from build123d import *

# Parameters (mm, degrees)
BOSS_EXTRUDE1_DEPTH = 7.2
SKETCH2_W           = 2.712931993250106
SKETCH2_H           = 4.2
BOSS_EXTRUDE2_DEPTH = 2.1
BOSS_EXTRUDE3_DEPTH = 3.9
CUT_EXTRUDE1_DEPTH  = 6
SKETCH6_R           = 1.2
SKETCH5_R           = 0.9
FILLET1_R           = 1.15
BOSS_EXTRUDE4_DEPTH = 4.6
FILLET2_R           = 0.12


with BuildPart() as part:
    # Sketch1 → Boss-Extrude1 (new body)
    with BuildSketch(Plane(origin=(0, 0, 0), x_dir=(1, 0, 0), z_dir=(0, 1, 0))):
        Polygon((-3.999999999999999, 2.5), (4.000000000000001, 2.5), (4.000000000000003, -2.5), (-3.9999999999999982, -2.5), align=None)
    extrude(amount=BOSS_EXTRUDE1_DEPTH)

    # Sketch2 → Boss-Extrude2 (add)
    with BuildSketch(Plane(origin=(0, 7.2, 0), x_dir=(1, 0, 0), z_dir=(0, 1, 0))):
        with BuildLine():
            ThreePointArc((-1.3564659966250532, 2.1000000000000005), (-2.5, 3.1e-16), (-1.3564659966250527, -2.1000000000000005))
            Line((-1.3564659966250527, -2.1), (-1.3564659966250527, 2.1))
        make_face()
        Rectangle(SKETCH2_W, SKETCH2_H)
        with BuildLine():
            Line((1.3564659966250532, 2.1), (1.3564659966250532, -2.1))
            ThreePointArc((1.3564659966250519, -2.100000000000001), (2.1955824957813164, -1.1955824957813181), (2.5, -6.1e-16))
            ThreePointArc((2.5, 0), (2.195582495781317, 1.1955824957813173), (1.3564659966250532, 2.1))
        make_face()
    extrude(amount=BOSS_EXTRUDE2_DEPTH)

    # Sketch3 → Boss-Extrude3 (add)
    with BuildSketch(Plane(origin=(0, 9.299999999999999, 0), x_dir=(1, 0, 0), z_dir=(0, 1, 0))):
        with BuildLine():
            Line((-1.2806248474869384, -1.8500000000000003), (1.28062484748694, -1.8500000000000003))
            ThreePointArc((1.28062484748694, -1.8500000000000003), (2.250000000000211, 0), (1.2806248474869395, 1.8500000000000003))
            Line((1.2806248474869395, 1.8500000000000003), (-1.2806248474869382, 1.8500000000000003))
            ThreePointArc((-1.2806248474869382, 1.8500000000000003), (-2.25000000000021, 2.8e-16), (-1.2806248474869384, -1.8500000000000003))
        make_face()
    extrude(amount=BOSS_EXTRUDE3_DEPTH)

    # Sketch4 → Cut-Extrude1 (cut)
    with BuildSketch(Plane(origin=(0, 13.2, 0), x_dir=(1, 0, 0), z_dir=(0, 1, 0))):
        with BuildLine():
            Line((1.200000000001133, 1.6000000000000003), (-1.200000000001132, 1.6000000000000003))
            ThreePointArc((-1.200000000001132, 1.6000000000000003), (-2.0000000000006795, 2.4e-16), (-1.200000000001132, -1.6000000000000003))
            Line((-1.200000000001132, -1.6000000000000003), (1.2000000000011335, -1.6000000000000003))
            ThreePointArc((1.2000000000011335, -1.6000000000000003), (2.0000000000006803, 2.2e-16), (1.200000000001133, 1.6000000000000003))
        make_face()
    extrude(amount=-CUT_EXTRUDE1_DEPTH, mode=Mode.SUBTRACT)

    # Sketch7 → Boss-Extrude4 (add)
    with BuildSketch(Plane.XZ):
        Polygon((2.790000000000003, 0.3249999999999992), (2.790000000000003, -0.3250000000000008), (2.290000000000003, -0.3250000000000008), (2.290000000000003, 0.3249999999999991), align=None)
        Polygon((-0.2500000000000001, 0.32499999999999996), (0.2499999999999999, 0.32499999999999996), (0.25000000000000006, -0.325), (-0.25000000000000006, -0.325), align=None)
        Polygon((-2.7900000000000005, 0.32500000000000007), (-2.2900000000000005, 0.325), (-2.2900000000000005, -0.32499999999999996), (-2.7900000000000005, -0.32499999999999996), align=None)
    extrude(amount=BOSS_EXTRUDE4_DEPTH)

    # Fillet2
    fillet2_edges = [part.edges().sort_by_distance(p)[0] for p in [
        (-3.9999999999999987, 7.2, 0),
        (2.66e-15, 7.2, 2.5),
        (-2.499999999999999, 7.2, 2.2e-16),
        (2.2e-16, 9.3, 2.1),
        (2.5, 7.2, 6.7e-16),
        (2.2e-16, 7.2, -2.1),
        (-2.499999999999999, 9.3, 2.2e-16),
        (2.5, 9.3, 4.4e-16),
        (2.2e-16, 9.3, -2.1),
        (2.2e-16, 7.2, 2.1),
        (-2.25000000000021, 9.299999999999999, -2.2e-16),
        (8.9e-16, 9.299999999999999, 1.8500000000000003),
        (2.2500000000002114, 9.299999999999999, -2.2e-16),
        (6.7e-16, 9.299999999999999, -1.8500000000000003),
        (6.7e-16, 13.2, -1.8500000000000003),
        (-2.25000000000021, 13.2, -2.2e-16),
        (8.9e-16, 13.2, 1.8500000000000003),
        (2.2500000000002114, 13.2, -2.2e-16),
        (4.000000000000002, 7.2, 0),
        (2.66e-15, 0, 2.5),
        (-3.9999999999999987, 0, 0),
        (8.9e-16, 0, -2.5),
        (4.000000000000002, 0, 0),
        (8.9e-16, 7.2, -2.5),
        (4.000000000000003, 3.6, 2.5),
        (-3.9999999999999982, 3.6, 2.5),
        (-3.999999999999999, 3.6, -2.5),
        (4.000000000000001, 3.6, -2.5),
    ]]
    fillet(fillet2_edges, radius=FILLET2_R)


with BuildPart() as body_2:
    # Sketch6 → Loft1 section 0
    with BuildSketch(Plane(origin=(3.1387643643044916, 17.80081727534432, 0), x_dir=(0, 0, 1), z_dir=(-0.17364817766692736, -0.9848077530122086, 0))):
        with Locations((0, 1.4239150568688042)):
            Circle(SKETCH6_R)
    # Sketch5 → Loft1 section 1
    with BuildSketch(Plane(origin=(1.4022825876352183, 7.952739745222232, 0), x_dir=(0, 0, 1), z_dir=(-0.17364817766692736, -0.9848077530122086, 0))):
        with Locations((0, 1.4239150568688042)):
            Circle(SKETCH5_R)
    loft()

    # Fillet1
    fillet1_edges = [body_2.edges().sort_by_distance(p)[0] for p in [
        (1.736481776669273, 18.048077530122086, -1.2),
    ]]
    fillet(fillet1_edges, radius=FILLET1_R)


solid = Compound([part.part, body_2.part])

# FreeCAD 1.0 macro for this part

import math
import FreeCAD as App
import Part
import Sketcher

V = App.Vector
Q = App.Units.Quantity


def edges_at(feature, points):
    """Names of the edges that pass closest to the given points."""
    edges = feature.Shape.Edges
    near = lambda p: min(range(len(edges)), key=lambda i: edges[i].distToShape(Part.Vertex(*p))[0])
    return sorted({f"Edge{near(p) + 1}" for p in points})

doc = App.newDocument("Part")
body = doc.addObject("PartDesign::Body", "Body")

# Sketch on XZ plane
sketch1 = body.newObject("Sketcher::SketchObject", "Sketch")
sketch1.AttachmentSupport = (doc.getObject("XZ_Plane"), [""])
sketch1.MapMode = "FlatFace"
sketch1.addGeometry(Part.LineSegment(V(4, -2, 0), V(-4, -2, 0)), False)
sketch1.addGeometry(Part.LineSegment(V(-4, -2, 0), V(-4, 2, 0)), False)
sketch1.addGeometry(Part.LineSegment(V(-4, 2, 0), V(4, 2, 0)), False)
sketch1.addGeometry(Part.LineSegment(V(4, 2, 0), V(4, -2, 0)), False)
sketch1.addConstraint(Sketcher.Constraint("Coincident", 0, 2, 1, 1))
sketch1.addConstraint(Sketcher.Constraint("Coincident", 1, 2, 2, 1))
sketch1.addConstraint(Sketcher.Constraint("Coincident", 2, 2, 3, 1))
sketch1.addConstraint(Sketcher.Constraint("Coincident", 3, 2, 0, 1))
sketch1.addConstraint(Sketcher.Constraint("Horizontal", 0))
sketch1.addConstraint(Sketcher.Constraint("Vertical", 1))
sketch1.addConstraint(Sketcher.Constraint("Horizontal", 2))
sketch1.addConstraint(Sketcher.Constraint("Vertical", 3))
sketch1.addConstraint(Sketcher.Constraint("Symmetric", 0, 2, 2, 2, -1, 1))
sketch1.addConstraint(Sketcher.Constraint("DistanceX", 0, 2, 0, 1, Q("8 mm")))
sketch1.addConstraint(Sketcher.Constraint("DistanceY", 1, 1, 1, 2, Q("5 mm")))
pad1 = body.newObject("PartDesign::Pad", "Pad")
pad1.Profile = sketch1
pad1.Length = 7.2
pad1.Reversed = True

# Sketch on XZ plane
sketch2 = body.newObject("Sketcher::SketchObject", "Sketch001")
sketch2.AttachmentSupport = (doc.getObject("XZ_Plane"), [""])
sketch2.MapMode = "FlatFace"
sketch2.AttachmentOffset = App.Placement(V(0, 0, -7.2), App.Rotation())
sketch2.addGeometry(Part.ArcOfCircle(Part.Circle(V(0, 0, 0), V(0, 0, 1), 2.5), math.radians(123), math.radians(237)), False)
sketch2.addGeometry(Part.LineSegment(V(-1.4, 2.1, 0), V(1.4, 2.1, 0)), False)
sketch2.addGeometry(Part.ArcOfCircle(Part.Circle(V(0, 0, 0), V(0, 0, 1), 2.5), math.radians(-57), math.radians(57)), False)
sketch2.addGeometry(Part.LineSegment(V(1.4, -2.1, 0), V(-1.4, -2.1, 0)), False)
sketch2.addConstraint(Sketcher.Constraint("Coincident", 0, 1, 1, 1))
sketch2.addConstraint(Sketcher.Constraint("Coincident", 1, 2, 2, 2))
sketch2.addConstraint(Sketcher.Constraint("Coincident", 2, 1, 3, 1))
sketch2.addConstraint(Sketcher.Constraint("Coincident", 3, 2, 0, 2))
sketch2.addConstraint(Sketcher.Constraint("Horizontal", 1))
sketch2.addConstraint(Sketcher.Constraint("Horizontal", 3))
sketch2.addConstraint(Sketcher.Constraint("Coincident", 0, 3, -1, 1))
sketch2.addConstraint(Sketcher.Constraint("Coincident", 2, 3, -1, 1))
sketch2.addConstraint(Sketcher.Constraint("Equal", 0, 2))
sketch2.addConstraint(Sketcher.Constraint("Vertical", 1, 2, 2, 1))
sketch2.addConstraint(Sketcher.Constraint("Radius", 0, Q("2.5 mm")))
sketch2.addConstraint(Sketcher.Constraint("DistanceY", -1, 1, 0, 1, Q("2.1 mm")))
pad2 = body.newObject("PartDesign::Pad", "Pad001")
pad2.Profile = sketch2
pad2.Length = 2.1
pad2.Reversed = True

# Sketch on XZ plane
sketch3 = body.newObject("Sketcher::SketchObject", "Sketch002")
sketch3.AttachmentSupport = (doc.getObject("XZ_Plane"), [""])
sketch3.MapMode = "FlatFace"
sketch3.AttachmentOffset = App.Placement(V(0, 0, -9.3), App.Rotation())
sketch3.addGeometry(Part.LineSegment(V(-1.3, 1.9, 0), V(1.3, 1.9, 0)), False)
sketch3.addGeometry(Part.ArcOfCircle(Part.Circle(V(0, 0, 0), V(0, 0, 1), 2.2), math.radians(-55), math.radians(55)), False)
sketch3.addGeometry(Part.LineSegment(V(1.3, -1.9, 0), V(-1.3, -1.9, 0)), False)
sketch3.addGeometry(Part.ArcOfCircle(Part.Circle(V(0, 0, 0), V(0, 0, 1), 2.2), math.radians(125), math.radians(235)), False)
sketch3.addConstraint(Sketcher.Constraint("Coincident", 0, 2, 1, 2))
sketch3.addConstraint(Sketcher.Constraint("Coincident", 1, 1, 2, 1))
sketch3.addConstraint(Sketcher.Constraint("Coincident", 2, 2, 3, 2))
sketch3.addConstraint(Sketcher.Constraint("Coincident", 3, 1, 0, 1))
sketch3.addConstraint(Sketcher.Constraint("Horizontal", 0))
sketch3.addConstraint(Sketcher.Constraint("Horizontal", 2))
sketch3.addConstraint(Sketcher.Constraint("Coincident", 1, 3, -1, 1))
sketch3.addConstraint(Sketcher.Constraint("Coincident", 3, 3, -1, 1))
sketch3.addConstraint(Sketcher.Constraint("Equal", 1, 3))
sketch3.addConstraint(Sketcher.Constraint("Vertical", 0, 2, 1, 1))
sketch3.addConstraint(Sketcher.Constraint("Radius", 1, Q("2.25 mm")))
sketch3.addConstraint(Sketcher.Constraint("DistanceY", 1, 1, 0, 2, Q("3.7 mm")))
pad3 = body.newObject("PartDesign::Pad", "Pad002")
pad3.Profile = sketch3
pad3.Length = 3.9
pad3.Reversed = True

# Sketch on XZ plane
sketch4 = body.newObject("Sketcher::SketchObject", "Sketch003")
sketch4.AttachmentSupport = (doc.getObject("XZ_Plane"), [""])
sketch4.MapMode = "FlatFace"
sketch4.AttachmentOffset = App.Placement(V(0, 0, -13.2), App.Rotation())
sketch4.addGeometry(Part.LineSegment(V(1.2, -1.6, 0), V(-1.2, -1.6, 0)), False)
sketch4.addGeometry(Part.ArcOfCircle(Part.Circle(V(0, 0, 0), V(0, 0, 1), 2), math.radians(127), math.radians(233)), False)
sketch4.addGeometry(Part.LineSegment(V(-1.2, 1.6, 0), V(1.2, 1.6, 0)), False)
sketch4.addGeometry(Part.ArcOfCircle(Part.Circle(V(0, 0, 0), V(0, 0, 1), 2), math.radians(-53), math.radians(53)), False)
sketch4.addConstraint(Sketcher.Constraint("Coincident", 0, 2, 1, 2))
sketch4.addConstraint(Sketcher.Constraint("Coincident", 1, 1, 2, 1))
sketch4.addConstraint(Sketcher.Constraint("Coincident", 2, 2, 3, 2))
sketch4.addConstraint(Sketcher.Constraint("Coincident", 3, 1, 0, 1))
sketch4.addConstraint(Sketcher.Constraint("Horizontal", 0))
sketch4.addConstraint(Sketcher.Constraint("Horizontal", 2))
sketch4.addConstraint(Sketcher.Constraint("Coincident", 1, 3, -1, 1))
sketch4.addConstraint(Sketcher.Constraint("Coincident", 3, 3, -1, 1))
sketch4.addConstraint(Sketcher.Constraint("Equal", 1, 3))
sketch4.addConstraint(Sketcher.Constraint("Vertical", 0, 2, 1, 1))
sketch4.addConstraint(Sketcher.Constraint("Radius", 1, Q("2 mm")))
sketch4.addConstraint(Sketcher.Constraint("DistanceX", 0, 2, 0, 1, Q("2.4 mm")))
pocket1 = body.newObject("PartDesign::Pocket", "Pocket")
pocket1.Profile = sketch4
pocket1.Length = 6
pocket1.Reversed = True

# Sketch on XZ plane
sketch5 = body.newObject("Sketcher::SketchObject", "Sketch004")
sketch5.AttachmentSupport = (doc.getObject("XZ_Plane"), [""])
sketch5.MapMode = "FlatFace"
sketch5.addGeometry(Part.LineSegment(V(2.8, -0.3, 0), V(2.8, 0.3, 0)), False)
sketch5.addGeometry(Part.LineSegment(V(2.8, 0.3, 0), V(2.3, 0.3, 0)), False)
sketch5.addGeometry(Part.LineSegment(V(2.3, 0.3, 0), V(2.3, -0.3, 0)), False)
sketch5.addGeometry(Part.LineSegment(V(2.3, -0.3, 0), V(2.8, -0.3, 0)), False)
sketch5.addGeometry(Part.LineSegment(V(0.2, 0.3, 0), V(-0.2, 0.3, 0)), False)
sketch5.addGeometry(Part.LineSegment(V(-0.2, 0.3, 0), V(-0.2, -0.3, 0)), False)
sketch5.addGeometry(Part.LineSegment(V(-0.2, -0.3, 0), V(0.2, -0.3, 0)), False)
sketch5.addGeometry(Part.LineSegment(V(0.2, -0.3, 0), V(0.2, 0.3, 0)), False)
sketch5.addGeometry(Part.LineSegment(V(-2.3, 0.3, 0), V(-2.8, 0.3, 0)), False)
sketch5.addGeometry(Part.LineSegment(V(-2.8, 0.3, 0), V(-2.8, -0.3, 0)), False)
sketch5.addGeometry(Part.LineSegment(V(-2.8, -0.3, 0), V(-2.3, -0.3, 0)), False)
sketch5.addGeometry(Part.LineSegment(V(-2.3, -0.3, 0), V(-2.3, 0.3, 0)), False)
sketch5.addConstraint(Sketcher.Constraint("Coincident", 0, 2, 1, 1))
sketch5.addConstraint(Sketcher.Constraint("Coincident", 1, 2, 2, 1))
sketch5.addConstraint(Sketcher.Constraint("Coincident", 2, 2, 3, 1))
sketch5.addConstraint(Sketcher.Constraint("Coincident", 3, 2, 0, 1))
sketch5.addConstraint(Sketcher.Constraint("Coincident", 4, 2, 5, 1))
sketch5.addConstraint(Sketcher.Constraint("Coincident", 5, 2, 6, 1))
sketch5.addConstraint(Sketcher.Constraint("Coincident", 6, 2, 7, 1))
sketch5.addConstraint(Sketcher.Constraint("Coincident", 7, 2, 4, 1))
sketch5.addConstraint(Sketcher.Constraint("Coincident", 8, 2, 9, 1))
sketch5.addConstraint(Sketcher.Constraint("Coincident", 9, 2, 10, 1))
sketch5.addConstraint(Sketcher.Constraint("Coincident", 10, 2, 11, 1))
sketch5.addConstraint(Sketcher.Constraint("Coincident", 11, 2, 8, 1))
sketch5.addConstraint(Sketcher.Constraint("Vertical", 0))
sketch5.addConstraint(Sketcher.Constraint("Horizontal", 1))
sketch5.addConstraint(Sketcher.Constraint("Vertical", 2))
sketch5.addConstraint(Sketcher.Constraint("Horizontal", 3))
sketch5.addConstraint(Sketcher.Constraint("Horizontal", 4))
sketch5.addConstraint(Sketcher.Constraint("Vertical", 5))
sketch5.addConstraint(Sketcher.Constraint("Horizontal", 6))
sketch5.addConstraint(Sketcher.Constraint("Vertical", 7))
sketch5.addConstraint(Sketcher.Constraint("Horizontal", 8))
sketch5.addConstraint(Sketcher.Constraint("Vertical", 9))
sketch5.addConstraint(Sketcher.Constraint("Horizontal", 10))
sketch5.addConstraint(Sketcher.Constraint("Vertical", 11))
sketch5.addConstraint(Sketcher.Constraint("Symmetric", 4, 2, 6, 2, -1, 1))
sketch5.addConstraint(Sketcher.Constraint("Symmetric", 3, 2, 8, 2, -1, 1))
sketch5.addConstraint(Sketcher.Constraint("Symmetric", 1, 2, 10, 2, -1, 1))
sketch5.addConstraint(Sketcher.Constraint("Horizontal", 1, 2, 4, 2))
sketch5.addConstraint(Sketcher.Constraint("Horizontal", 3, 2, 5, 2))
sketch5.addConstraint(Sketcher.Constraint("Equal", 3, 4))
sketch5.addConstraint(Sketcher.Constraint("DistanceX", 1, 2, 1, 1, Q("0.5 mm")))
sketch5.addConstraint(Sketcher.Constraint("DistanceY", 0, 1, 0, 2, Q("0.65 mm")))
sketch5.addConstraint(Sketcher.Constraint("DistanceX", -1, 1, 0, 2, Q("2.79 mm")))
pad4 = body.newObject("PartDesign::Pad", "Pad003")
pad4.Profile = sketch5
pad4.Length = 4.6
doc.recompute()

fillet = body.newObject("PartDesign::Fillet", "Fillet")
fillet.Base = (pad4, edges_at(pad4, [
    (-4, 7.2, 0),
    (0, 7.2, 2.5),
    (-2.5, 7.2, 0),
    (0, 9.3, 2.1),
    (2.5, 7.2, 0),
    (0, 7.2, -2.1),
    (-2.5, 9.3, 0),
    (2.5, 9.3, 0),
    (0, 9.3, -2.1),
    (0, 7.2, 2.1),
    (-2.25, 9.3, 0),
    (0, 9.3, 1.85),
    (2.25, 9.3, 0),
    (0, 9.3, -1.85),
    (0, 13.2, -1.85),
    (-2.25, 13.2, 0),
    (0, 13.2, 1.85),
    (2.25, 13.2, 0),
    (4, 7.2, 0),
    (0, 0, 2.5),
    (-4, 0, 0),
    (0, 0, -2.5),
    (4, 0, 0),
    (0, 7.2, -2.5),
    (4, 3.6, 2.5),
    (-4, 3.6, 2.5),
    (-4, 3.6, -2.5),
    (4, 3.6, -2.5),
]))
fillet.Radius = 0.12
body2 = doc.addObject("PartDesign::Body", "Body001")

# Sketch on an angled plane
sketch6 = body2.newObject("Sketcher::SketchObject", "Sketch005")
sketch6.Placement = App.Placement(V(3.138764, 17.800817, 0), App.Rotation(V(0, 0, 1), V(-0.984807753, 0.173648178, 0), V(-0.173648178, -0.984807753, 0), "ZXY"))
sketch6.addGeometry(Part.Circle(V(0, 1.4, 0), V(0, 0, 1), 1.2), False)
sketch6.addConstraint(Sketcher.Constraint("PointOnObject", 0, 3, -2))
sketch6.addConstraint(Sketcher.Constraint("Diameter", 0, Q("2.4 mm")))
sketch6.addConstraint(Sketcher.Constraint("DistanceY", -1, 1, 0, 3, Q("1.423915 mm")))

# Sketch on an angled plane
sketch7 = body2.newObject("Sketcher::SketchObject", "Sketch006")
sketch7.Placement = App.Placement(V(1.402283, 7.95274, 0), App.Rotation(V(0, 0, 1), V(-0.984807753, 0.173648178, 0), V(-0.173648178, -0.984807753, 0), "ZXY"))
sketch7.addGeometry(Part.Circle(V(0, 1.4, 0), V(0, 0, 1), 0.9), False)
sketch7.addConstraint(Sketcher.Constraint("PointOnObject", 0, 3, -2))
sketch7.addConstraint(Sketcher.Constraint("Diameter", 0, Q("1.8 mm")))
sketch7.addConstraint(Sketcher.Constraint("DistanceY", -1, 1, 0, 3, Q("1.423915 mm")))

additiveloft = body2.newObject("PartDesign::AdditiveLoft", "AdditiveLoft")
additiveloft.Profile = sketch6
additiveloft.Sections = [sketch7]
doc.recompute()

fillet2 = body2.newObject("PartDesign::Fillet", "Fillet001")
fillet2.Base = (additiveloft, edges_at(additiveloft, [(1.736, 18.048, -1.2)]))
fillet2.Radius = 1.15

doc.recompute()
